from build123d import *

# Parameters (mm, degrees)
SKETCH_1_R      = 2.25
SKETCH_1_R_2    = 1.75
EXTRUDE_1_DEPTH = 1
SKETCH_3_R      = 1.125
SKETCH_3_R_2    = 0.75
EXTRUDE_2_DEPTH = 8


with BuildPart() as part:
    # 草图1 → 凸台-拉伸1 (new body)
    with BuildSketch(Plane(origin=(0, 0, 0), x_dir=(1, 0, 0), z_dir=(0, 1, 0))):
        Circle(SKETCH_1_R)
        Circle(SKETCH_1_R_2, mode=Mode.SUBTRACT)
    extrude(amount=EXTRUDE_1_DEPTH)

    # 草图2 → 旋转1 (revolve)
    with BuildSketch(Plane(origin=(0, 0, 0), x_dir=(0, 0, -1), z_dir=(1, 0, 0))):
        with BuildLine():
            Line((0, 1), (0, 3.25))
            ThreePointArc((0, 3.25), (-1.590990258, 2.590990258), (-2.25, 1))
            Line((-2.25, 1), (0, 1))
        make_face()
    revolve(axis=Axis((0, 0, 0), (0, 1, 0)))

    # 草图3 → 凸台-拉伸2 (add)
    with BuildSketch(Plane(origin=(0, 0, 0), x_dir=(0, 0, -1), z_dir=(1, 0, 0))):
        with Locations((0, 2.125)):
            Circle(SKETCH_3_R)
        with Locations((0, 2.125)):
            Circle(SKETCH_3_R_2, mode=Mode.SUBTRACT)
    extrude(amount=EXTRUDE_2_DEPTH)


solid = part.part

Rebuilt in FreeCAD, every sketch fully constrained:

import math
import FreeCAD as App
import Part
import Sketcher

V = App.Vector

doc = App.newDocument("Part")
body = doc.addObject("PartDesign::Body", "Body")

sketch1 = doc.addObject("Sketcher::SketchObject", "Sketch")
body.addObject(sketch1)
sketch1.AttachmentSupport = (doc.XZ_Plane, [""])
sketch1.MapMode = "FlatFace"
sketch1.addGeometry([
    Part.Circle(V(0, 0, 0), V(0, 0, 1), 2.2),
    Part.Circle(V(0, 0, 0), V(0, 0, 1), 1.8),
], False)
sketch1.addConstraint([
    Sketcher.Constraint("Coincident", 0, 3, -1, 1),
    Sketcher.Constraint("Coincident", 1, 3, -1, 1),
    Sketcher.Constraint("Diameter", 0, 4.5),
    Sketcher.Constraint("Diameter", 1, 3.5),
])
pad1 = doc.addObject("PartDesign::Pad", "Pad")
body.addObject(pad1)
pad1.Profile = sketch1
pad1.Length = 1
pad1.Reversed = True

sketch2 = doc.addObject("Sketcher::SketchObject", "Sketch001")
body.addObject(sketch2)
sketch2.AttachmentSupport = (doc.YZ_Plane, [""])
sketch2.MapMode = "FlatFace"
sketch2.addGeometry([
    Part.LineSegment(V(1, 0, 0), V(3.2, 0, 0)),
    Part.ArcOfCircle(Part.Circle(V(1, 0, 0), V(0, 0, 1), 2.2), math.radians(0), math.radians(90)),
    Part.LineSegment(V(1, 2.2, 0), V(1, 0, 0)),
], False)
sketch2.addConstraint([
    Sketcher.Constraint("Coincident", 0, 2, 1, 1),
    Sketcher.Constraint("Coincident", 1, 2, 2, 1),
    Sketcher.Constraint("Coincident", 2, 2, 0, 1),
    Sketcher.Constraint("Horizontal", 0),
    Sketcher.Constraint("Vertical", 2),
    Sketcher.Constraint("Coincident", 2, 2, 1, 3),
    Sketcher.Constraint("PointOnObject", 1, 3, -1),
    Sketcher.Constraint("Radius", 1, 2.25),
    Sketcher.Constraint("DistanceX", -1, 1, 1, 3, 1.0),
])
revolution = doc.addObject("PartDesign::Revolution", "Revolution")
body.addObject(revolution)
revolution.Profile = sketch2
revolution.ReferenceAxis = (sketch2, ["H_Axis"])
revolution.Angle = 360

sketch3 = doc.addObject("Sketcher::SketchObject", "Sketch002")
body.addObject(sketch3)
sketch3.AttachmentSupport = (doc.YZ_Plane, [""])
sketch3.MapMode = "FlatFace"
sketch3.addGeometry([
    Part.Circle(V(2.1, 0, 0), V(0, 0, 1), 1.1),
    Part.Circle(V(2.1, 0, 0), V(0, 0, 1), 0.8),
], False)
sketch3.addConstraint([
    Sketcher.Constraint("Coincident", 1, 3, 0, 3),
    Sketcher.Constraint("PointOnObject", 0, 3, -1),
    Sketcher.Constraint("Diameter", 1, 1.5),
    Sketcher.Constraint("Diameter", 0, 2.25),
    Sketcher.Constraint("DistanceX", -1, 1, 0, 3, 2.125),
])
pad2 = doc.addObject("PartDesign::Pad", "Pad001")
body.addObject(pad2)
pad2.Profile = sketch3
pad2.Length = 8

doc.recompute()
